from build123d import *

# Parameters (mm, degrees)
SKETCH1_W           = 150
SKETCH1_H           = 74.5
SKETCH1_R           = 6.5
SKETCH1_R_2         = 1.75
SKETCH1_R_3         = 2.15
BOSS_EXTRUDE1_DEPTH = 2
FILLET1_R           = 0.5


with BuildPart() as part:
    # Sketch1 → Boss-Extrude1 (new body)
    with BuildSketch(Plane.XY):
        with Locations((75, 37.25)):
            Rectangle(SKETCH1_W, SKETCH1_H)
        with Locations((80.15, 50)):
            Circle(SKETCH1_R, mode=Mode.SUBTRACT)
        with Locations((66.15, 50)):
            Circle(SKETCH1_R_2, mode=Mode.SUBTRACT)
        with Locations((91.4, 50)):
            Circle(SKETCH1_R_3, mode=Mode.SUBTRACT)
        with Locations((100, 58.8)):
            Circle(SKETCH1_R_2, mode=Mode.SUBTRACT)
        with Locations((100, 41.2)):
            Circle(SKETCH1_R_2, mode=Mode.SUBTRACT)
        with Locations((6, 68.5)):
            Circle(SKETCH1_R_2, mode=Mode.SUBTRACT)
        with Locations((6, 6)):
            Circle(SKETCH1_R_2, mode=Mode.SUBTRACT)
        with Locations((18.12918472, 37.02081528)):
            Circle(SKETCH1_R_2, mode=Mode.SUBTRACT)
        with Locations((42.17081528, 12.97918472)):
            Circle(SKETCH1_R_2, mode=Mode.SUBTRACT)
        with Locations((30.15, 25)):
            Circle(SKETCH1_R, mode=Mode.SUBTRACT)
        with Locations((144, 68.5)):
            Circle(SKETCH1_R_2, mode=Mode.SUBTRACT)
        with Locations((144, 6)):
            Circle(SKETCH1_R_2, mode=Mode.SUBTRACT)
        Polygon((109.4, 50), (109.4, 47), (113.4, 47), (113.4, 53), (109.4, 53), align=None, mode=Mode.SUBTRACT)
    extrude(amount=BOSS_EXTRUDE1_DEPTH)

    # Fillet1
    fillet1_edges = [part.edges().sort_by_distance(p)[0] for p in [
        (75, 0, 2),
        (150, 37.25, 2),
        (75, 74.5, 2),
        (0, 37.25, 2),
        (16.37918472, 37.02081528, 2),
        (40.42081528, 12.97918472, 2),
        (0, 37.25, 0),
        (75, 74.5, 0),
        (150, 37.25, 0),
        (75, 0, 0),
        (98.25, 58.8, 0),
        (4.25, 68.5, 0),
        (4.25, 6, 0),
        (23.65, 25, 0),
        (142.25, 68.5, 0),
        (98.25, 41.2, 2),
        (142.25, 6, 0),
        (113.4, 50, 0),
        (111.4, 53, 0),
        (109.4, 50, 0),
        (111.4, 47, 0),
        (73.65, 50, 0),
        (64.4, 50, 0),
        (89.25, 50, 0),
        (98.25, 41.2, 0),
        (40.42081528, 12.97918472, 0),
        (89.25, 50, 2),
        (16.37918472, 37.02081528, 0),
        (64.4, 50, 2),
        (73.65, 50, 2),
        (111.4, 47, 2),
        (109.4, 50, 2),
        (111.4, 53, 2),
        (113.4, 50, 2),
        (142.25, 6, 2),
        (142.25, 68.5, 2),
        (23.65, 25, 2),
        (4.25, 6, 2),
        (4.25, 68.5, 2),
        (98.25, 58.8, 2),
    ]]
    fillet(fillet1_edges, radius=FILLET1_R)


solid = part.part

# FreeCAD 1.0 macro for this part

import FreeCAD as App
import Part
import Sketcher

V = App.Vector


def edges_at(feature, points):
    """Names of the edges that pass closest to the given points."""
    edges = feature.Shape.Edges
    near = lambda p: min(range(len(edges)), key=lambda i: edges[i].distToShape(Part.Vertex(*p))[0])
    return sorted({f"Edge{near(p) + 1}" for p in points})

doc = App.newDocument("Part")
params = doc.addObject("Spreadsheet::Sheet", "Params")
for row, (alias, value) in enumerate([
    ("sketch1_diameter", "13 mm"),
    ("sketch1_diameter2", "3.5 mm"),
    ("sketch1_diameter3", "4.3 mm"),
    ("sketch1_width", "150 mm"),
    ("sketch1_width2", "4 mm"),
    ("pad1_length", "2 mm"),
    ("fillet_radius", "0.5 mm"),
], start=1):
    params.set(f"A{row}", alias)
    params.set(f"B{row}", "=" + value)
    params.setAlias(f"B{row}", alias)

body = doc.addObject("PartDesign::Body", "Body")

# Sketch on XY plane
sketch1 = doc.addObject("Sketcher::SketchObject", "Sketch")
body.addObject(sketch1)
sketch1.AttachmentSupport = (doc.XY_Plane, [""])
sketch1.MapMode = "FlatFace"
sketch1.addGeometry(Part.LineSegment(V(0, 74.5, 0), V(0, 0, 0)), False)
sketch1.addGeometry(Part.LineSegment(V(0, 0, 0), V(150, 0, 0)), False)
sketch1.addGeometry(Part.LineSegment(V(150, 0, 0), V(150, 74.5, 0)), False)
sketch1.addGeometry(Part.LineSegment(V(150, 74.5, 0), V(0, 74.5, 0)), False)
sketch1.addGeometry(Part.Circle(V(6, 6, 0), V(0, 0, 1), 1.75), False)
sketch1.addGeometry(Part.Circle(V(42.170815, 12.979185, 0), V(0, 0, 1), 1.75), False)
sketch1.addGeometry(Part.Circle(V(30.15, 25, 0), V(0, 0, 1), 6.5), False)
sketch1.addGeometry(Part.Circle(V(18.129185, 37.020815, 0), V(0, 0, 1), 1.75), False)
sketch1.addGeometry(Part.Circle(V(144, 6, 0), V(0, 0, 1), 1.75), False)
sketch1.addGeometry(Part.Circle(V(66.15, 50, 0), V(0, 0, 1), 1.75), False)
sketch1.addGeometry(Part.Circle(V(6, 68.5, 0), V(0, 0, 1), 1.75), False)
sketch1.addGeometry(Part.Circle(V(100, 41.2, 0), V(0, 0, 1), 1.75), False)
sketch1.addGeometry(Part.Circle(V(80.15, 50, 0), V(0, 0, 1), 6.5), False)
sketch1.addGeometry(Part.Circle(V(91.4, 50, 0), V(0, 0, 1), 2.15), False)
sketch1.addGeometry(Part.LineSegment(V(109.4, 47, 0), V(109.4, 53, 0)), False)
sketch1.addGeometry(Part.LineSegment(V(109.4, 53, 0), V(113.4, 53, 0)), False)
sketch1.addGeometry(Part.LineSegment(V(113.4, 53, 0), V(113.4, 47, 0)), False)
sketch1.addGeometry(Part.LineSegment(V(113.4, 47, 0), V(109.4, 47, 0)), False)
sketch1.addGeometry(Part.Circle(V(100, 58.8, 0), V(0, 0, 1), 1.75), False)
sketch1.addGeometry(Part.Circle(V(144, 68.5, 0), V(0, 0, 1), 1.75), False)
sketch1.addConstraint(Sketcher.Constraint("Coincident", 0, 2, 1, 1))
sketch1.addConstraint(Sketcher.Constraint("Coincident", 1, 2, 2, 1))
sketch1.addConstraint(Sketcher.Constraint("Coincident", 2, 2, 3, 1))
sketch1.addConstraint(Sketcher.Constraint("Coincident", 3, 2, 0, 1))
sketch1.addConstraint(Sketcher.Constraint("Coincident", 14, 2, 15, 1))
sketch1.addConstraint(Sketcher.Constraint("Coincident", 15, 2, 16, 1))
sketch1.addConstraint(Sketcher.Constraint("Coincident", 16, 2, 17, 1))
sketch1.addConstraint(Sketcher.Constraint("Coincident", 17, 2, 14, 1))
sketch1.addConstraint(Sketcher.Constraint("Vertical", 0))
sketch1.addConstraint(Sketcher.Constraint("Horizontal", 1))
sketch1.addConstraint(Sketcher.Constraint("Vertical", 2))
sketch1.addConstraint(Sketcher.Constraint("Horizontal", 3))
sketch1.addConstraint(Sketcher.Constraint("Vertical", 14))
sketch1.addConstraint(Sketcher.Constraint("Horizontal", 15))
sketch1.addConstraint(Sketcher.Constraint("Vertical", 16))
sketch1.addConstraint(Sketcher.Constraint("Horizontal", 17))
sketch1.addConstraint(Sketcher.Constraint("Coincident", 0, 2, -1, 1))
sketch1.addConstraint(Sketcher.Constraint("Equal", 4, 5))
sketch1.addConstraint(Sketcher.Constraint("Equal", 5, 7))
sketch1.addConstraint(Sketcher.Constraint("Equal", 7, 8))
sketch1.addConstraint(Sketcher.Constraint("Equal", 8, 9))
sketch1.addConstraint(Sketcher.Constraint("Equal", 9, 10))
sketch1.addConstraint(Sketcher.Constraint("Equal", 10, 11))
sketch1.addConstraint(Sketcher.Constraint("Equal", 6, 12))
sketch1.addConstraint(Sketcher.Constraint("Equal", 11, 18))
sketch1.addConstraint(Sketcher.Constraint("Equal", 18, 19))
sketch1.addConstraint(Sketcher.Constraint("Horizontal", 4, 3, 8, 3))
sketch1.addConstraint(Sketcher.Constraint("Horizontal", 9, 3, 12, 3))
sketch1.addConstraint(Sketcher.Constraint("Horizontal", 12, 3, 13, 3))
sketch1.addConstraint(Sketcher.Constraint("Horizontal", 10, 3, 19, 3))
sketch1.addConstraint(Sketcher.Constraint("Vertical", 4, 3, 10, 3))
sketch1.addConstraint(Sketcher.Constraint("Vertical", 11, 3, 18, 3))
sketch1.addConstraint(Sketcher.Constraint("Vertical", 8, 3, 19, 3))
sketch1.addConstraint(Sketcher.Constraint("Diameter", 6, 13.0))
sketch1.addConstraint(Sketcher.Constraint("Diameter", 4, 3.5))
sketch1.addConstraint(Sketcher.Constraint("Diameter", 13, 4.3))
sketch1.addConstraint(Sketcher.Constraint("DistanceX", 1, 1, 1, 2, 150.0))
sketch1.addConstraint(Sketcher.Constraint("DistanceX", 15, 1, 15, 2, 4.0))
sketch1.addConstraint(Sketcher.Constraint("DistanceY", 14, 1, 14, 2, 6.0))
sketch1.addConstraint(Sketcher.Constraint("DistanceY", 0, 2, 0, 1, 74.5))
sketch1.addConstraint(Sketcher.Constraint("DistanceX", -1, 1, 4, 3, 6.0))
sketch1.addConstraint(Sketcher.Constraint("DistanceY", -1, 1, 4, 3, 6.0))
sketch1.addConstraint(Sketcher.Constraint("DistanceY", -1, 1, 6, 3, 25.0))
sketch1.addConstraint(Sketcher.Constraint("DistanceX", -1, 1, 8, 3, 144.0))
sketch1.addConstraint(Sketcher.Constraint("DistanceY", -1, 1, 9, 3, 50.0))
sketch1.addConstraint(Sketcher.Constraint("DistanceX", -1, 1, 11, 3, 100.0))
sketch1.addConstraint(Sketcher.Constraint("DistanceY", -1, 1, 14, 2, 53.0))
sketch1.addConstraint(Sketcher.Constraint("DistanceX", 6, 3, 9, 3, 36.0))
sketch1.addConstraint(Sketcher.Constraint("DistanceX", 9, 3, 12, 3, 14.0))
sketch1.addConstraint(Sketcher.Constraint("DistanceY", 19, 3, 2, 2, 6.0))
sketch1.addConstraint(Sketcher.Constraint("DistanceX", 13, 3, 14, 2, 18.0))
sketch1.addConstraint(Sketcher.Constraint("DistanceY", -1, 1, 11, 3, 41.2))
sketch1.addConstraint(Sketcher.Constraint("DistanceX", -1, 1, 13, 3, 91.4))
sketch1.addConstraint(Sketcher.Constraint("DistanceY", -1, 1, 18, 3, 58.8))
sketch1.addConstraint(Sketcher.Constraint("DistanceX", -1, 1, 6, 3, 30.15))
sketch1.addConstraint(Sketcher.Constraint("DistanceX", 7, 3, 5, 3, 24.041631))
sketch1.addConstraint(Sketcher.Constraint("DistanceY", 5, 3, 7, 3, 24.041631))
sketch1.addConstraint(Sketcher.Constraint("DistanceX", -1, 1, 5, 3, 42.170815))
sketch1.addConstraint(Sketcher.Constraint("DistanceY", -1, 1, 5, 3, 12.979185))
sketch1.setExpression("Constraints[33]", "Params.sketch1_diameter")
sketch1.setExpression("Constraints[34]", "Params.sketch1_diameter2")
sketch1.setExpression("Constraints[35]", "Params.sketch1_diameter3")
sketch1.setExpression("Constraints[36]", "Params.sketch1_width")
sketch1.setExpression("Constraints[37]", "Params.sketch1_width2")
pad1 = doc.addObject("PartDesign::Pad", "Pad")
body.addObject(pad1)
pad1.Profile = sketch1
pad1.setExpression("Length", "Params.pad1_length")
doc.recompute()

fillet = doc.addObject("PartDesign::Fillet", "Fillet")
body.addObject(fillet)
fillet.Base = (pad1, edges_at(pad1, [
    (75, 0, 2),
    (150, 37.25, 2),
    (75, 74.5, 2),
    (0, 37.25, 2),
    (16.379, 37.021, 2),
    (40.421, 12.979, 2),
    (0, 37.25, 0),
    (75, 74.5, 0),
    (150, 37.25, 0),
    (75, 0, 0),
    (98.25, 58.8, 0),
    (4.25, 68.5, 0),
    (4.25, 6, 0),
    (23.65, 25, 0),
    (142.25, 68.5, 0),
    (98.25, 41.2, 2),
    (142.25, 6, 0),
    (113.4, 50, 0),
    (111.4, 53, 0),
    (109.4, 50, 0),
    (111.4, 47, 0),
    (73.65, 50, 0),
    (64.4, 50, 0),
    (89.25, 50, 0),
    (98.25, 41.2, 0),
    (40.421, 12.979, 0),
    (89.25, 50, 2),
    (16.379, 37.021, 0),
    (64.4, 50, 2),
    (73.65, 50, 2),
    (111.4, 47, 2),
    (109.4, 50, 2),
    (111.4, 53, 2),
    (113.4, 50, 2),
    (142.25, 6, 2),
    (142.25, 68.5, 2),
    (23.65, 25, 2),
    (4.25, 6, 2),
    (4.25, 68.5, 2),
    (98.25, 58.8, 2),
]))
fillet.setExpression("Radius", "Params.fillet_radius")

doc.recompute()
